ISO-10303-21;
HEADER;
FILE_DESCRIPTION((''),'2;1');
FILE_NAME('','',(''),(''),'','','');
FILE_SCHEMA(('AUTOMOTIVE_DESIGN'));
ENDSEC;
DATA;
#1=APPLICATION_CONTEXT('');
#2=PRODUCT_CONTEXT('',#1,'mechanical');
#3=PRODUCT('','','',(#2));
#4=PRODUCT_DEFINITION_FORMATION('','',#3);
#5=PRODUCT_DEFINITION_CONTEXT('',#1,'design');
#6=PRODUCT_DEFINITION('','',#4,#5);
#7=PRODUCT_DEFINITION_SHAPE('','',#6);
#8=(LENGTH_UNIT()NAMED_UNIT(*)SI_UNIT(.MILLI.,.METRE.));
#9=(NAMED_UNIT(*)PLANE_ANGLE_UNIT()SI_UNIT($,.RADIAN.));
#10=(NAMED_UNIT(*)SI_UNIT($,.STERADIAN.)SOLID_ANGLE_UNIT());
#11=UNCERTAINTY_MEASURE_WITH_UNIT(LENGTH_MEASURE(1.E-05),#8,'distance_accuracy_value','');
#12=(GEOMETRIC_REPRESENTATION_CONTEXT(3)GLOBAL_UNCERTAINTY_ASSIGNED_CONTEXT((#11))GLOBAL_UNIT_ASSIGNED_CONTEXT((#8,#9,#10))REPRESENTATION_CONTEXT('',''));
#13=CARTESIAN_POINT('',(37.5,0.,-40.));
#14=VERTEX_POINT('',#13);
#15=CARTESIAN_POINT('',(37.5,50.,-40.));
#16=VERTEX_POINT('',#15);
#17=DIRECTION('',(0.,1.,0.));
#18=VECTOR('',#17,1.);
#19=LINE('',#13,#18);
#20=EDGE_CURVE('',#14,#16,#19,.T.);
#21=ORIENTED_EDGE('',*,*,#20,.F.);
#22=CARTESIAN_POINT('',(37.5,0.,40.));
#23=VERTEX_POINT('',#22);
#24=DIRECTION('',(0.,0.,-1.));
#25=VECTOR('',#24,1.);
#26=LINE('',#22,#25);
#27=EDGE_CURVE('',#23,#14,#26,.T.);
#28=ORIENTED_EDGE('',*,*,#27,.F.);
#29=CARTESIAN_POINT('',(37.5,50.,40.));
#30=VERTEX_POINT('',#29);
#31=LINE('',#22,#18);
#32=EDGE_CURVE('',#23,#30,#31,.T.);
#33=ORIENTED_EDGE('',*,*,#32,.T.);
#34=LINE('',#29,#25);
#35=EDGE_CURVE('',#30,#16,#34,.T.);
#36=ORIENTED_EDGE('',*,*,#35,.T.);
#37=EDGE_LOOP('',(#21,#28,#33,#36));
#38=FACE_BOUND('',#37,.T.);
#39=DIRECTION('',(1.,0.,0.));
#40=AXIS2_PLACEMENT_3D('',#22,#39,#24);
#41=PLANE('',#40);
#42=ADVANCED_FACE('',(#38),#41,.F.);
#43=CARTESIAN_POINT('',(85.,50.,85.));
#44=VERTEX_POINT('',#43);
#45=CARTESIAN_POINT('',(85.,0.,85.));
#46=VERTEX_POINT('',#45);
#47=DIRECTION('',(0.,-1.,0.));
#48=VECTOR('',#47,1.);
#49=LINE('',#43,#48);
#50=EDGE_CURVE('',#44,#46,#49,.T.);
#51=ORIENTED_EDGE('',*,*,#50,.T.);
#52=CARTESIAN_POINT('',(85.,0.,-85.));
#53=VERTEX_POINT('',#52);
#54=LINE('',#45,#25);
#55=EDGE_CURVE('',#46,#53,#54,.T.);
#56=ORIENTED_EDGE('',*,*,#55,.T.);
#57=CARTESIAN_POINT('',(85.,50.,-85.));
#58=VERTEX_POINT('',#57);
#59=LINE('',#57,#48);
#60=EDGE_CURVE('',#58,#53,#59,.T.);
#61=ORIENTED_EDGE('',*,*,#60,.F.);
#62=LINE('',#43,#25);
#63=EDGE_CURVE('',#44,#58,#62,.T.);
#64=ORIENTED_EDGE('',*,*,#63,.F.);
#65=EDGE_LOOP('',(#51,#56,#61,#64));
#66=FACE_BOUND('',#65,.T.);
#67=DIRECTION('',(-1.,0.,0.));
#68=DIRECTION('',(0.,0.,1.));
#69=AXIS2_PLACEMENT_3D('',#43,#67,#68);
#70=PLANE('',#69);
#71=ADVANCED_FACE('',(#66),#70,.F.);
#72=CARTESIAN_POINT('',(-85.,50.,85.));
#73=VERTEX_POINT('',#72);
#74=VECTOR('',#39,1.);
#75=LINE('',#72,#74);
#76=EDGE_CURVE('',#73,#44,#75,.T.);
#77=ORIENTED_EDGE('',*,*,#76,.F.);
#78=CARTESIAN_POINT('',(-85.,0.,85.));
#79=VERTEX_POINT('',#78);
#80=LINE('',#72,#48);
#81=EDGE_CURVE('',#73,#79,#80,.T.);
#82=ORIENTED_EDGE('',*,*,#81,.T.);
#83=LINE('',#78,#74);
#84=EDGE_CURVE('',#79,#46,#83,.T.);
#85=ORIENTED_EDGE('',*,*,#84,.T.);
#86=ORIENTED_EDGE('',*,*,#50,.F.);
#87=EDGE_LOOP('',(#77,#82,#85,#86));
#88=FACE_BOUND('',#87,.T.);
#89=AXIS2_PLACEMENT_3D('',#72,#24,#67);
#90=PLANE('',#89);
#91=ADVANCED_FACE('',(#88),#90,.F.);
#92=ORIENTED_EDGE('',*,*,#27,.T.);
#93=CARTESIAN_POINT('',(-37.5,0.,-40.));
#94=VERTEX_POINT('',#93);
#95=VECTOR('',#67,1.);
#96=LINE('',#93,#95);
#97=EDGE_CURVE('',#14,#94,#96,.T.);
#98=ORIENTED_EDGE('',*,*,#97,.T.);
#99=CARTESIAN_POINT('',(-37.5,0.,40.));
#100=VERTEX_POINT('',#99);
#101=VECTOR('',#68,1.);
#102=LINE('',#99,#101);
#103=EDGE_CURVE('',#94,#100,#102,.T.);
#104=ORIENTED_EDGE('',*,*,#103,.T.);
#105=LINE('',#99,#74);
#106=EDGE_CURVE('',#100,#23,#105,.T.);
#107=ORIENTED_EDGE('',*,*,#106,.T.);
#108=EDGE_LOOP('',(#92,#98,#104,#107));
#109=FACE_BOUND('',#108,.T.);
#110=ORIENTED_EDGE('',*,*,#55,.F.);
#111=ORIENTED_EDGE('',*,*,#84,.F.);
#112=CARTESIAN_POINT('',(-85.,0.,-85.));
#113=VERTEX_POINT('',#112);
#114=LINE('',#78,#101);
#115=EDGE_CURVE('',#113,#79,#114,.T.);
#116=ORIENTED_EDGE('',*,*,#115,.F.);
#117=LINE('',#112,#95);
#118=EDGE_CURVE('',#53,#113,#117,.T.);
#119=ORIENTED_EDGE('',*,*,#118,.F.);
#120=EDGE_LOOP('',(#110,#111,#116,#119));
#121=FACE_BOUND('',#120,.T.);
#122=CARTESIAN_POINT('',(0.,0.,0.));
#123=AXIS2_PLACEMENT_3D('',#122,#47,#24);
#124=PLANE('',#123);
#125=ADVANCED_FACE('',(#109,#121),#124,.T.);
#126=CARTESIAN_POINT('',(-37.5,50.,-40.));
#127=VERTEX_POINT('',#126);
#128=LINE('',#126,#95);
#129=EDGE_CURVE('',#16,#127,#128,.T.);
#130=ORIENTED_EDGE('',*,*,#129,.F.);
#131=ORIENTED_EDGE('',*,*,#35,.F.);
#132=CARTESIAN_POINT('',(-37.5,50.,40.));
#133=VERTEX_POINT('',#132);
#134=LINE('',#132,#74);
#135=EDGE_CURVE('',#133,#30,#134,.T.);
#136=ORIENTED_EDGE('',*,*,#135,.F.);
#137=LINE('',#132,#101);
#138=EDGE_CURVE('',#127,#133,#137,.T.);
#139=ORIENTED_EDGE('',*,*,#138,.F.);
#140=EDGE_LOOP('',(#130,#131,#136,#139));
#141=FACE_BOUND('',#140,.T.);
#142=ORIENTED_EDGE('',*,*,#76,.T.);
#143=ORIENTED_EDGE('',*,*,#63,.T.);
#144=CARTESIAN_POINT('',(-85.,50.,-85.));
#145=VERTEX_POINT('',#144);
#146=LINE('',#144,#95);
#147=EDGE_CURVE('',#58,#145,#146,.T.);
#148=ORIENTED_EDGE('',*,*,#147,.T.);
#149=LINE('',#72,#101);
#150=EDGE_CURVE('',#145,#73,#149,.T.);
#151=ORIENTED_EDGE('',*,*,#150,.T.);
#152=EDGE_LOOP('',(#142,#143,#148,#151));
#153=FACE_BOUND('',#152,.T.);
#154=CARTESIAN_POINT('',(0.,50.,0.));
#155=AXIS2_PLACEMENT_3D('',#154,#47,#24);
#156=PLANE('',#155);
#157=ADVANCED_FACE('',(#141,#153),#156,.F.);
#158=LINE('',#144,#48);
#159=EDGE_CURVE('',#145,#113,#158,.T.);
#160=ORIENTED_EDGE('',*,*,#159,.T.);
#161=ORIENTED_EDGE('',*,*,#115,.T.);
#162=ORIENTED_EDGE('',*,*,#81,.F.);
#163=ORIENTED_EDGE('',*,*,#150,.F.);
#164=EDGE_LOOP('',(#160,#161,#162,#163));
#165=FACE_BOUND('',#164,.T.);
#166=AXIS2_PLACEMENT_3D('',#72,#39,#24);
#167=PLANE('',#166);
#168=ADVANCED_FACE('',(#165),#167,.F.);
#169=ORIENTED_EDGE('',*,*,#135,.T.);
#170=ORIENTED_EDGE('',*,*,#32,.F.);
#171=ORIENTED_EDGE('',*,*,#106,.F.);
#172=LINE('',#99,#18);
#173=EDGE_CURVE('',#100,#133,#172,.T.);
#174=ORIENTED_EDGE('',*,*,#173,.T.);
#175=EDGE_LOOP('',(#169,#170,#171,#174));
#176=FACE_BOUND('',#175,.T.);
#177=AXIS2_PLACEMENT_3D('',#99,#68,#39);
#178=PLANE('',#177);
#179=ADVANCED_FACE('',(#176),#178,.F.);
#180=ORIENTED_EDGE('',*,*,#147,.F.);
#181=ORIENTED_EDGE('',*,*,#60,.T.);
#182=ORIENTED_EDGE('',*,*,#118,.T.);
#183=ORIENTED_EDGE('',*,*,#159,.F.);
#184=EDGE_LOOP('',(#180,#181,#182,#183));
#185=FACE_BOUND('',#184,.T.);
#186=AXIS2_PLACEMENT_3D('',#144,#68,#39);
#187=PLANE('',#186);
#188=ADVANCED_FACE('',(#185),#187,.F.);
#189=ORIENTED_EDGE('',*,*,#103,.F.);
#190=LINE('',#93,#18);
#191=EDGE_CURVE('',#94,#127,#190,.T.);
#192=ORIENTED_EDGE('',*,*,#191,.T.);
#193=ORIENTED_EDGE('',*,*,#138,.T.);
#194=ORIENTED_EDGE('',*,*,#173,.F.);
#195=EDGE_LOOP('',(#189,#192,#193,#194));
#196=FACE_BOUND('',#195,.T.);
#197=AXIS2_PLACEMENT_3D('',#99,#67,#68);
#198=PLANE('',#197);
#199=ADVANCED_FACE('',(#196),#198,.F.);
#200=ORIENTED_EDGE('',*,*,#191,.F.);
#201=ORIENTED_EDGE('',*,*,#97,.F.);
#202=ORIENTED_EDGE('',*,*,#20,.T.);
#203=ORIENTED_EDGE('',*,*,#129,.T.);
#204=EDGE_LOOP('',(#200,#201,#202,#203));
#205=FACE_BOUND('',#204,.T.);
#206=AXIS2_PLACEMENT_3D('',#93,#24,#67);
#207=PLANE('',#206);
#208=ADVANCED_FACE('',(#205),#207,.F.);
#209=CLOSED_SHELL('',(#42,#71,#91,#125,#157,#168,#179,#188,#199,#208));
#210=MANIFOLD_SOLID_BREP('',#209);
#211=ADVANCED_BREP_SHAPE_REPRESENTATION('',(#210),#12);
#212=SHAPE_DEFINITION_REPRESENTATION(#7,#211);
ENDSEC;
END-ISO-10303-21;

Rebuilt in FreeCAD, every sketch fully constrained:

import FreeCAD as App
import Part
import Sketcher
from FreeCAD import Vector

doc = App.newDocument("Part")
body = doc.addObject("PartDesign::Body", "Body")

sketch1 = body.newObject("Sketcher::SketchObject", "Sketch")
sketch1.AttachmentSupport = (doc.getObject("XZ_Plane"), [""])
sketch1.MapMode = "FlatFace"
sketch1.addGeometry([
    Part.LineSegment(Vector(-85, -85, 0), Vector(-85, 85, 0)),
    Part.LineSegment(Vector(-85, 85, 0), Vector(85, 85, 0)),
    Part.LineSegment(Vector(85, 85, 0), Vector(85, -85, 0)),
    Part.LineSegment(Vector(85, -85, 0), Vector(-85, -85, 0)),
], False)
sketch1.addConstraint([
    Sketcher.Constraint("Coincident", 0, 2, 1, 1),
    Sketcher.Constraint("Coincident", 1, 2, 2, 1),
    Sketcher.Constraint("Coincident", 2, 2, 3, 1),
    Sketcher.Constraint("Coincident", 3, 2, 0, 1),
    Sketcher.Constraint("Vertical", 0),
    Sketcher.Constraint("Horizontal", 1),
    Sketcher.Constraint("Vertical", 2),
    Sketcher.Constraint("Horizontal", 3),
    Sketcher.Constraint("Symmetric", 0, 2, 2, 2, -1, 1),
    Sketcher.Constraint("Equal", 3, 0),
    Sketcher.Constraint("DistanceX", 1, 1, 1, 2, 170.0),
])
pad1 = body.newObject("PartDesign::Pad", "Pad")
pad1.Profile = sketch1
pad1.Length = 50
pad1.Reversed = True

sketch2 = body.newObject("Sketcher::SketchObject", "Sketch001")
sketch2.AttachmentSupport = (doc.getObject("XZ_Plane"), [""])
sketch2.MapMode = "FlatFace"
sketch2.AttachmentOffset = App.Placement(Vector(0, 0, -50), App.Rotation())
sketch2.addGeometry([
    Part.LineSegment(Vector(-38, -40, 0), Vector(-38, 40, 0)),
    Part.LineSegment(Vector(-38, 40, 0), Vector(38, 40, 0)),
    Part.LineSegment(Vector(38, 40, 0), Vector(38, -40, 0)),
    Part.LineSegment(Vector(38, -40, 0), Vector(-38, -40, 0)),
], False)
sketch2.addConstraint([
    Sketcher.Constraint("Coincident", 0, 2, 1, 1),
    Sketcher.Constraint("Coincident", 1, 2, 2, 1),
    Sketcher.Constraint("Coincident", 2, 2, 3, 1),
    Sketcher.Constraint("Coincident", 3, 2, 0, 1),
    Sketcher.Constraint("Vertical", 0),
    Sketcher.Constraint("Horizontal", 1),
    Sketcher.Constraint("Vertical", 2),
    Sketcher.Constraint("Horizontal", 3),
    Sketcher.Constraint("Symmetric", 0, 2, 2, 2, -1, 1),
    Sketcher.Constraint("DistanceX", 1, 1, 1, 2, 75.0),
    Sketcher.Constraint("DistanceY", 0, 1, 0, 2, 80.0),
])
pocket1 = body.newObject("PartDesign::Pocket", "Pocket")
pocket1.Profile = sketch2
pocket1.Length = 50
pocket1.Reversed = True

doc.recompute()
